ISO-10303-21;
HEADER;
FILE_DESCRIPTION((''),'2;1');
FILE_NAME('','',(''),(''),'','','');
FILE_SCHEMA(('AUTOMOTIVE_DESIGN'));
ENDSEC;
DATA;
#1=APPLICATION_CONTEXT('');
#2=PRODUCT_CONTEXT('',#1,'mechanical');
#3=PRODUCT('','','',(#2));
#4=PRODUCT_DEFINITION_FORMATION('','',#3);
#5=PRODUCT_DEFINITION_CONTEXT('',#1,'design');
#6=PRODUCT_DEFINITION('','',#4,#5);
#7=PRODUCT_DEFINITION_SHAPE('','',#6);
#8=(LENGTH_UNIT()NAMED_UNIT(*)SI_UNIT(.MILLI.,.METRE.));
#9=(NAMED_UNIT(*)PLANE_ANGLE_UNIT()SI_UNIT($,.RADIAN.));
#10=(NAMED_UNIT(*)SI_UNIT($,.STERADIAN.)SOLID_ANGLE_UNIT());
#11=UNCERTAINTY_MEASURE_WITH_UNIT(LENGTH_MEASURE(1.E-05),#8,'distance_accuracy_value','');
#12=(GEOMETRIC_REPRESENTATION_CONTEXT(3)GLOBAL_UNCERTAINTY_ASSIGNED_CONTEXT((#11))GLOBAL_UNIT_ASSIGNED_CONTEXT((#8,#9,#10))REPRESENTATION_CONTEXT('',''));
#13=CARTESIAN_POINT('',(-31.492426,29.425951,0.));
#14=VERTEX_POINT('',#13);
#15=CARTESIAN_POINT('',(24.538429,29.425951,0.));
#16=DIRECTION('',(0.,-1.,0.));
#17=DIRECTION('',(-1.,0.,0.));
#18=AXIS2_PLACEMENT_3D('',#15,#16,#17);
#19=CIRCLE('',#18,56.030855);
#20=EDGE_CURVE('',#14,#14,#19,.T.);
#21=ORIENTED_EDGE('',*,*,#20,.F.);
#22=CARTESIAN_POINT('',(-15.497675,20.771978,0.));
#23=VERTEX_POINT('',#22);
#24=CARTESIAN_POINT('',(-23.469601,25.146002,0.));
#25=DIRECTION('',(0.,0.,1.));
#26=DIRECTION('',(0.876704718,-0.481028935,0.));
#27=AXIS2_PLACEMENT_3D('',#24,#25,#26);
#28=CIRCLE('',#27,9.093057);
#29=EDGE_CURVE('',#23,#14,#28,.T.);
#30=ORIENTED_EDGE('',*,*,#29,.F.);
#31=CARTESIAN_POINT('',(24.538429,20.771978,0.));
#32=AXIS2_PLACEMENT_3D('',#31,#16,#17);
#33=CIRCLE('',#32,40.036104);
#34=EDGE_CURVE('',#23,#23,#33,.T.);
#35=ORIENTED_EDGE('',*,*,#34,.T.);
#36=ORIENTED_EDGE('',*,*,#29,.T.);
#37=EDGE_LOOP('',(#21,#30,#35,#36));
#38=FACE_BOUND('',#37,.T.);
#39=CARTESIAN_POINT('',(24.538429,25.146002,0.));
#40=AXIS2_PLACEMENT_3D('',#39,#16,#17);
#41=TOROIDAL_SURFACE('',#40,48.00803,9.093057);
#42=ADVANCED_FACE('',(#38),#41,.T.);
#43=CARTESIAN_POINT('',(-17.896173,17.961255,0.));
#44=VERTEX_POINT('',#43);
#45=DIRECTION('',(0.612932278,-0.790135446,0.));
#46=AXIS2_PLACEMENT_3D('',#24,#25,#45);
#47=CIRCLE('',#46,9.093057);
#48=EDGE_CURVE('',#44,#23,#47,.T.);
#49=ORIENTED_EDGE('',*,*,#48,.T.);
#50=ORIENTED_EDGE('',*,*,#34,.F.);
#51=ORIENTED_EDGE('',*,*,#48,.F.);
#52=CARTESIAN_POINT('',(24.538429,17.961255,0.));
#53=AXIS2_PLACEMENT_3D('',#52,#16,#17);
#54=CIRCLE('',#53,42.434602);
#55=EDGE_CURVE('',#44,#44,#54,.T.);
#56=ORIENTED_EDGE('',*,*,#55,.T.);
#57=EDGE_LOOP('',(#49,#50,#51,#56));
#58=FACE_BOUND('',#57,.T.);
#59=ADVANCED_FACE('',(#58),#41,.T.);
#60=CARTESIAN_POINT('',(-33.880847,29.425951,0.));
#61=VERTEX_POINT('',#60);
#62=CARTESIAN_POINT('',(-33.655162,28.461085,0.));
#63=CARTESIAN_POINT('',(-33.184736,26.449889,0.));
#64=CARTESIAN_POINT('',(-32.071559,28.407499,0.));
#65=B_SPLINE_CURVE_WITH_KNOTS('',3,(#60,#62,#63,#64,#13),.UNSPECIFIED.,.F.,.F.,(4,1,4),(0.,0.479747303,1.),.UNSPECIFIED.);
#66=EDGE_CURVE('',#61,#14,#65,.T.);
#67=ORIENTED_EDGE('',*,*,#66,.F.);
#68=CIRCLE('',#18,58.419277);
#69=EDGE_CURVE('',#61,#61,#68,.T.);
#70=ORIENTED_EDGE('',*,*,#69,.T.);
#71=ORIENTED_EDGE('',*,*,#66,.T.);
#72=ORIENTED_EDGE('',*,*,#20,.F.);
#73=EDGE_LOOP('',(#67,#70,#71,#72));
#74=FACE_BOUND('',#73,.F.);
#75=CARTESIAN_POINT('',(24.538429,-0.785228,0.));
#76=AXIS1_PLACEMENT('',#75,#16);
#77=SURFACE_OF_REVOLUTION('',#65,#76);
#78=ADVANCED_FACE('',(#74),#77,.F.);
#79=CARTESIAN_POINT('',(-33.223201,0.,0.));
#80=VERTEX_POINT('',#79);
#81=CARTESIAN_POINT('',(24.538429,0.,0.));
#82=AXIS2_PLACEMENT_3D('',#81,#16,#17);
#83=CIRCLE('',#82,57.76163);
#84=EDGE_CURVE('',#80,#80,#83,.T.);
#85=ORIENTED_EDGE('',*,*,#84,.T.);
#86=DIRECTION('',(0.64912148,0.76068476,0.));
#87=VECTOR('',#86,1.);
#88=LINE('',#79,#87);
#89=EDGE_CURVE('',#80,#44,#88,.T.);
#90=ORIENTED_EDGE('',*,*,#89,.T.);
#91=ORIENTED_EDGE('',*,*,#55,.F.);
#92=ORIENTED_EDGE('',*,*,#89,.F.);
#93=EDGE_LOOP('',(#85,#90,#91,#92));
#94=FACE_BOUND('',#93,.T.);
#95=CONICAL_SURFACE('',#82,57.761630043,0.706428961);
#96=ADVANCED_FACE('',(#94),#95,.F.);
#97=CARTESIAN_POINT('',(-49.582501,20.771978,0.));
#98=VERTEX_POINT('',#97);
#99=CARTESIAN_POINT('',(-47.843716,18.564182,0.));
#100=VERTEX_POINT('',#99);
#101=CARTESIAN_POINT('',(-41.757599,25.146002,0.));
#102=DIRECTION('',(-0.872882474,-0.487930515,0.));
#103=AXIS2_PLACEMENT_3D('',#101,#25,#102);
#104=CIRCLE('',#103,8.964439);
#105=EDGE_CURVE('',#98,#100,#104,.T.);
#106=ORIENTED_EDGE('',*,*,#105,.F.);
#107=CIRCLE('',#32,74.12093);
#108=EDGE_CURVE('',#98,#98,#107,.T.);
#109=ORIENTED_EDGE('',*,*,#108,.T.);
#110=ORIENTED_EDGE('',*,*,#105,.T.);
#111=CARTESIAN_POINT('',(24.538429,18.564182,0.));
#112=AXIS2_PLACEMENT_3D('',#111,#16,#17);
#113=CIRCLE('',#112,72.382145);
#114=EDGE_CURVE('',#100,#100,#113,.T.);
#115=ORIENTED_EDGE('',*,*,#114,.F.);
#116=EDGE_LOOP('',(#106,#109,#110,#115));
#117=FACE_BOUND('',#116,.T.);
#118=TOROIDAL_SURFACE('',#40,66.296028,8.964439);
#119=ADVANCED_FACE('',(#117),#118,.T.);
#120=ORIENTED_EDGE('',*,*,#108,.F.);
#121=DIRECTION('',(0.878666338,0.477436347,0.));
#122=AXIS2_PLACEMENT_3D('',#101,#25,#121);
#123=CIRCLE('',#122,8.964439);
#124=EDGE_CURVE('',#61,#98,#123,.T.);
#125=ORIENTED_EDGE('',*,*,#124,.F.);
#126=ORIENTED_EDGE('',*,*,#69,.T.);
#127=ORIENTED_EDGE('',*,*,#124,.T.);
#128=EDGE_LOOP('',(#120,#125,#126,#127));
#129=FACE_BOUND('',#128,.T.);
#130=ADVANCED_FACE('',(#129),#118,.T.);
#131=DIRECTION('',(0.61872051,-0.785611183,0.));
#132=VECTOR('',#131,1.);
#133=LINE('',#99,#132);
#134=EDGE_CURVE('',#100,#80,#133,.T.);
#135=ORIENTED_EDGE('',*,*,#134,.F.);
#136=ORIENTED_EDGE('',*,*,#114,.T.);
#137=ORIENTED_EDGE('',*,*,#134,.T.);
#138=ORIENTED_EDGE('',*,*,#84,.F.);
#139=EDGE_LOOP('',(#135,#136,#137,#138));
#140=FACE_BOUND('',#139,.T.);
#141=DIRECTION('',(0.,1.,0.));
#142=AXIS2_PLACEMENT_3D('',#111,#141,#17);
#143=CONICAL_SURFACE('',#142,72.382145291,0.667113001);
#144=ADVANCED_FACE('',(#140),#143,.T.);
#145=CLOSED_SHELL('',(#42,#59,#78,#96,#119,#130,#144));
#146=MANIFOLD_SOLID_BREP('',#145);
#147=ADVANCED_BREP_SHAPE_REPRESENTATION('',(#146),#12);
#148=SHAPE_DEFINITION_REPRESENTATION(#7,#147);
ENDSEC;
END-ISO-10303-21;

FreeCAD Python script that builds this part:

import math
import FreeCAD as App
import Part
import Sketcher
from FreeCAD import Vector

doc = App.newDocument("Part")
body = doc.addObject("PartDesign::Body", "Body")

# Sketch on XY plane
sketch1 = body.newObject("Sketcher::SketchObject", "Sketch")
sketch1.AttachmentSupport = (doc.getObject("XY_Plane"), [""])
sketch1.MapMode = "FlatFace"
sketch1.addGeometry([
    Part.BSplineCurve([Vector(-33.880847, 29.425951, 0), Vector(-33.655162, 28.461085, 0), Vector(-33.184736, 26.449889, 0), Vector(-32.071559, 28.407499, 0), Vector(-31.492426, 29.425951, 0)], [4, 1, 4], [0, 0.479747303, 1], False, 3, [1, 1, 1, 1, 1], False),  # 0
    Part.ArcOfCircle(Part.Circle(Vector(-41.757599, 25.146002, 0), Vector(0, 0, 1), 8.964439), math.radians(28.518099), math.radians(209.204651)),  # 1
    Part.ArcOfCircle(Part.Circle(Vector(-41.757599, 25.146002, 0), Vector(0, 0, 1), 8.964439), math.radians(-150.795349), math.radians(-132.759132)),  # 2
    Part.LineSegment(Vector(-47.843716, 18.564182, 0), Vector(-33.223201, 0, 0)),  # 3
    Part.LineSegment(Vector(-33.223201, 0, 0), Vector(-17.896173, 17.961255, 0)),  # 4
    Part.ArcOfCircle(Part.Circle(Vector(-23.469601, 25.146002, 0), Vector(0, 0, 1), 9.093057), math.radians(-52.198171), math.radians(-28.752625)),  # 5
    Part.ArcOfCircle(Part.Circle(Vector(-23.469601, 25.146002, 0), Vector(0, 0, 1), 9.093057), math.radians(-28.752625), math.radians(151.921346)),  # 6
], False)
sketch1.addGeometry(Part.LineSegment(Vector(24.538429, 29.425951, 0), Vector(24.538429, 0, 0)), True)  # axis
sketch1.addConstraint([
    Sketcher.Constraint("Block", 0),
    Sketcher.Constraint("Coincident", 0, 1, 1, 1),
    Sketcher.Constraint("Coincident", 1, 2, 2, 1),
    Sketcher.Constraint("Coincident", 2, 2, 3, 1),
    Sketcher.Constraint("Coincident", 3, 2, 4, 1),
    Sketcher.Constraint("Coincident", 4, 2, 5, 1),
    Sketcher.Constraint("Coincident", 5, 2, 6, 1),
    Sketcher.Constraint("Coincident", 6, 2, 0, 2),
    Sketcher.Constraint("Vertical", 7),
    Sketcher.Constraint("Coincident", 2, 3, 1, 3),
    Sketcher.Constraint("Coincident", 6, 3, 5, 3),
    Sketcher.Constraint("PointOnObject", 3, 2, -1),
    Sketcher.Constraint("PointOnObject", 7, 2, -1),
    Sketcher.Constraint("Radius", 1, 8.964439),
    Sketcher.Constraint("DistanceY", -1, 1, 1, 3, 25.146002),
    Sketcher.Constraint("DistanceY", -1, 1, 5, 3, 25.146002),
    Sketcher.Constraint("Radius", 5, 9.093057),
    Sketcher.Constraint("DistanceY", 7, 2, 7, 1, 29.425951),
    Sketcher.Constraint("DistanceX", 1, 2, -1, 1, 49.582501),
    Sketcher.Constraint("DistanceX", 3, 2, -1, 1, 33.223201),
    Sketcher.Constraint("Distance", 3, 23.630242),
    Sketcher.Constraint("DistanceY", -1, 1, 5, 2, 20.771978),
    Sketcher.Constraint("DistanceX", -1, 1, 7, 1, 24.538429),
    Sketcher.Constraint("DistanceX", 5, 3, 4, 2, 5.573428),
])
revolution = body.newObject("PartDesign::Revolution", "Revolution")
revolution.Profile = sketch1
revolution.ReferenceAxis = (sketch1, ["Axis0"])
revolution.Angle = 360

doc.recompute()
